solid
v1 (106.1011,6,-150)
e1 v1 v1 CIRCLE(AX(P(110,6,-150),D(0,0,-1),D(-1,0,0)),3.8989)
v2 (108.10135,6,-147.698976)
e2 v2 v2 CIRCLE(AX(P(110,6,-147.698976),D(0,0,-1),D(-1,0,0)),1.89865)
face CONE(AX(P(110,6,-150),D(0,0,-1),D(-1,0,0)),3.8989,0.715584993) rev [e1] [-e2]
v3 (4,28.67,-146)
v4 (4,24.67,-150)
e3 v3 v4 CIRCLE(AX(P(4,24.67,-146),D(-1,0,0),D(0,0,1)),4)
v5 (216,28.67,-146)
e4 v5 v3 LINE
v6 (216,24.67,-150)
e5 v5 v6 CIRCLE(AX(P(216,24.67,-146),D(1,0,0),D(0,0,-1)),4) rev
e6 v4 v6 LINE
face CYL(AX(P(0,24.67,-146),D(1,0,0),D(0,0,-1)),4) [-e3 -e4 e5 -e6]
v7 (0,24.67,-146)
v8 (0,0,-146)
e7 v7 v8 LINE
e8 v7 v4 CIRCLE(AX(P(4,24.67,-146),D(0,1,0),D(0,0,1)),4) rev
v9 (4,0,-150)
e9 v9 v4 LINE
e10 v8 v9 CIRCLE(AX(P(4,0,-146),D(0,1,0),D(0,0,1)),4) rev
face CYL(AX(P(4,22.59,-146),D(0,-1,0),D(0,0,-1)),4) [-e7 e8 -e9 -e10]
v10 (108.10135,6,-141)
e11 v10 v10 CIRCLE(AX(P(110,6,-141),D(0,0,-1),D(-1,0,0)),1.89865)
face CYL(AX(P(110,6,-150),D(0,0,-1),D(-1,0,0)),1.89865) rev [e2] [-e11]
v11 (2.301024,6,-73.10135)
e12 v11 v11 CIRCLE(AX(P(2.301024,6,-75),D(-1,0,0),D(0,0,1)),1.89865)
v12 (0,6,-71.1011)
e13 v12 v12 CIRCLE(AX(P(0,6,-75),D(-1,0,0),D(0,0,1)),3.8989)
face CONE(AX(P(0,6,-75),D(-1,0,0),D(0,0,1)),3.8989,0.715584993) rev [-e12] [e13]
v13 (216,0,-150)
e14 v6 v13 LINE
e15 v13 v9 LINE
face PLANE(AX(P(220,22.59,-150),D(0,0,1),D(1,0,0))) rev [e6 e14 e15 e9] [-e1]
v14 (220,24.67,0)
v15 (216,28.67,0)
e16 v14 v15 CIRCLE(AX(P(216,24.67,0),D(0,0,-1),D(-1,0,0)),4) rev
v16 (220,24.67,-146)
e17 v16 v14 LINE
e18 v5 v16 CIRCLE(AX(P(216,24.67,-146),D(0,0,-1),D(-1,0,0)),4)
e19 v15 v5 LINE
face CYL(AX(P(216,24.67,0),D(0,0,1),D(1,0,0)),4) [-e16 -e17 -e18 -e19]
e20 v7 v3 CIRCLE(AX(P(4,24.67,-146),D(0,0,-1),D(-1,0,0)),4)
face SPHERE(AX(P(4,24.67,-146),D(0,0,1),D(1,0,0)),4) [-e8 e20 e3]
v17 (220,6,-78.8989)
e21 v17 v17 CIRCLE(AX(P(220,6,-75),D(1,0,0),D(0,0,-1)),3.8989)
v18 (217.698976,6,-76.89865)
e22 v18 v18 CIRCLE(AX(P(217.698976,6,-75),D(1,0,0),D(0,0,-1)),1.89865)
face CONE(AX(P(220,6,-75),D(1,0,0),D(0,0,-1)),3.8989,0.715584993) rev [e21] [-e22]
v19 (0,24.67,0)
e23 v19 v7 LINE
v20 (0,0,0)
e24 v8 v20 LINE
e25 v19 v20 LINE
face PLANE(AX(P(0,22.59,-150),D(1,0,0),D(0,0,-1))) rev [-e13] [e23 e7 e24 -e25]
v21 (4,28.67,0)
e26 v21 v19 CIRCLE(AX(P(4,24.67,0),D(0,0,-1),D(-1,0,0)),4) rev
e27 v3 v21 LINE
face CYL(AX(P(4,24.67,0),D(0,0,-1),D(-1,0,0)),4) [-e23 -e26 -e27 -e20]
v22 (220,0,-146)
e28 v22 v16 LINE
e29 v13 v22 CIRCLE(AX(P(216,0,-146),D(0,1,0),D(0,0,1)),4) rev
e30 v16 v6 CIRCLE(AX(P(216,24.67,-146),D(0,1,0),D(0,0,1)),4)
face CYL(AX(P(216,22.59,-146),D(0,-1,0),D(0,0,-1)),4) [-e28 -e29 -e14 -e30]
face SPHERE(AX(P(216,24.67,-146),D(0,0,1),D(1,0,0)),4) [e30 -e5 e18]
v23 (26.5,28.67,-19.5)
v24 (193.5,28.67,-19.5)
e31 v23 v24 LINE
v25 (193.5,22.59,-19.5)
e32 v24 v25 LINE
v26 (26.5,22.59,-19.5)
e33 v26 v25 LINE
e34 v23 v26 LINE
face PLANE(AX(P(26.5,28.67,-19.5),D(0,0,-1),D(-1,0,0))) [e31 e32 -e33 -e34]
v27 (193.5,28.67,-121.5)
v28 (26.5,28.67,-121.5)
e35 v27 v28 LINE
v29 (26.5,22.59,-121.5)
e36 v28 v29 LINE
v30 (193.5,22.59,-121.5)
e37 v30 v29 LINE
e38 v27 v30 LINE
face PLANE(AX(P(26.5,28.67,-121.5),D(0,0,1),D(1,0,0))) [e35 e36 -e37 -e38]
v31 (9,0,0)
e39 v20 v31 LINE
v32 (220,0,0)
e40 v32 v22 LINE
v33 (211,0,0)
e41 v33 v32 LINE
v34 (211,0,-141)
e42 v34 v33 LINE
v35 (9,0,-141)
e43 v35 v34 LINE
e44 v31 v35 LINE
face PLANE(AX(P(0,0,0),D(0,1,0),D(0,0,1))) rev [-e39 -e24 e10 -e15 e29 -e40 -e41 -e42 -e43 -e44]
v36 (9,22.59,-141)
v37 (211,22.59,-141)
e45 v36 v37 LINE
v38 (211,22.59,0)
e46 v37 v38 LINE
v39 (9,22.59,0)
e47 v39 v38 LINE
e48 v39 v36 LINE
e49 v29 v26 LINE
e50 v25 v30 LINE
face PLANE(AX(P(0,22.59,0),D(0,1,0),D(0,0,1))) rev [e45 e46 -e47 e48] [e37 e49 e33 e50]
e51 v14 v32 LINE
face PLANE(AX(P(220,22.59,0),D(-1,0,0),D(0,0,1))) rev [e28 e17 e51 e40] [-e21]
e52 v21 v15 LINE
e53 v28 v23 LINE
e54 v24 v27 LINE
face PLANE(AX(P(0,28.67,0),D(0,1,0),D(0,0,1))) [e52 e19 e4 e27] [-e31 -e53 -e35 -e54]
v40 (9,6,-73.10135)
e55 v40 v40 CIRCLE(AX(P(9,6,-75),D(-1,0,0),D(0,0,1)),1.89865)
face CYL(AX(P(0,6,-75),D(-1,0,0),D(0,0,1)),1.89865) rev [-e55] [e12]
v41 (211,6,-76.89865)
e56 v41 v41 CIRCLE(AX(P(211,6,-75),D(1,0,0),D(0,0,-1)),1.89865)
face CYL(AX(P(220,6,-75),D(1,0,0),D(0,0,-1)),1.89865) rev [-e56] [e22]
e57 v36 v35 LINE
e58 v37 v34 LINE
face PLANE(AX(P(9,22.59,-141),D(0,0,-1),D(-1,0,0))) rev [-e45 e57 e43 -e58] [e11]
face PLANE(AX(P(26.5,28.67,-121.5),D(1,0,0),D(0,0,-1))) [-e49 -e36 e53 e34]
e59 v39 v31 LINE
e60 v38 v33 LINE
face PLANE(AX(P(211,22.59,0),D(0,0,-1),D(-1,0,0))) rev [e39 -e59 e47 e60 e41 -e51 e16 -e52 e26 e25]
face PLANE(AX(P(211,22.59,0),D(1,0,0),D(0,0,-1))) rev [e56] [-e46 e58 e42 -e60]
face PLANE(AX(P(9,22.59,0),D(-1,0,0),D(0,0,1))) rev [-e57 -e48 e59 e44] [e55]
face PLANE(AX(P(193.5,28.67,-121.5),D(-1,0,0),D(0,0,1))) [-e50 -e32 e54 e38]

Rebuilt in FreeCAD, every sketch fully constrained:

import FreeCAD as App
import Part
import Sketcher

V = App.Vector
Q = App.Units.Quantity


def edges_at(feature, points):
    """Names of the edges that pass closest to the given points."""
    edges = feature.Shape.Edges
    near = lambda p: min(range(len(edges)), key=lambda i: edges[i].distToShape(Part.Vertex(*p))[0])
    return sorted({f"Edge{near(p) + 1}" for p in points})

doc = App.newDocument("Part")
body = doc.addObject("PartDesign::Body", "Body")

sketch1 = body.newObject("Sketcher::SketchObject", "Sketch")
sketch1.AttachmentSupport = (doc.getObject("XZ_Plane"), [""])
sketch1.MapMode = "FlatFace"
sketch1.addGeometry([
    Part.LineSegment(V(211, 0, 0), V(220, 0, 0)),
    Part.LineSegment(V(220, 0, 0), V(220, -150, 0)),
    Part.LineSegment(V(220, -150, 0), V(0, -150, 0)),
    Part.LineSegment(V(0, -150, 0), V(0, 0, 0)),
    Part.LineSegment(V(0, 0, 0), V(9, 0, 0)),
    Part.LineSegment(V(9, 0, 0), V(9, -141, 0)),
    Part.LineSegment(V(9, -141, 0), V(211, -141, 0)),
    Part.LineSegment(V(211, -141, 0), V(211, 0, 0)),
], False)
sketch1.addConstraint([
    Sketcher.Constraint("Coincident", 0, 2, 1, 1),
    Sketcher.Constraint("Coincident", 1, 2, 2, 1),
    Sketcher.Constraint("Coincident", 2, 2, 3, 1),
    Sketcher.Constraint("Coincident", 3, 2, 4, 1),
    Sketcher.Constraint("Coincident", 4, 2, 5, 1),
    Sketcher.Constraint("Coincident", 5, 2, 6, 1),
    Sketcher.Constraint("Coincident", 6, 2, 7, 1),
    Sketcher.Constraint("Coincident", 7, 2, 0, 1),
    Sketcher.Constraint("Horizontal", 0),
    Sketcher.Constraint("Vertical", 1),
    Sketcher.Constraint("Horizontal", 2),
    Sketcher.Constraint("Vertical", 3),
    Sketcher.Constraint("Horizontal", 4),
    Sketcher.Constraint("Vertical", 5),
    Sketcher.Constraint("Horizontal", 6),
    Sketcher.Constraint("Vertical", 7),
    Sketcher.Constraint("Coincident", 3, 2, -1, 1),
    Sketcher.Constraint("PointOnObject", 0, 2, -1),
    Sketcher.Constraint("Equal", 0, 4),
    Sketcher.Constraint("DistanceX", 0, 1, 0, 2, Q("9 mm")),
    Sketcher.Constraint("DistanceX", 2, 2, 2, 1, Q("220 mm")),
    Sketcher.Constraint("DistanceY", 1, 2, 1, 1, Q("150 mm")),
    Sketcher.Constraint("DistanceY", 5, 2, 5, 1, Q("141 mm")),
])
pad1 = body.newObject("PartDesign::Pad", "Pad")
pad1.Profile = sketch1
pad1.Length = 22.59
pad1.Reversed = True

sketch2 = body.newObject("Sketcher::SketchObject", "Sketch001")
sketch2.AttachmentSupport = (doc.getObject("XZ_Plane"), [""])
sketch2.MapMode = "FlatFace"
sketch2.AttachmentOffset = App.Placement(V(0, 0, -22.59), App.Rotation())
sketch2.addGeometry([
    Part.LineSegment(V(0, -150, 0), V(0, 0, 0)),
    Part.LineSegment(V(0, 0, 0), V(220, 0, 0)),
    Part.LineSegment(V(220, 0, 0), V(220, -150, 0)),
    Part.LineSegment(V(220, -150, 0), V(0, -150, 0)),
    Part.LineSegment(V(194, -20, 0), V(26, -20, 0)),
    Part.LineSegment(V(26, -20, 0), V(26, -122, 0)),
    Part.LineSegment(V(26, -122, 0), V(194, -122, 0)),
    Part.LineSegment(V(194, -122, 0), V(194, -20, 0)),
], False)
sketch2.addConstraint([
    Sketcher.Constraint("Coincident", 0, 2, 1, 1),
    Sketcher.Constraint("Coincident", 1, 2, 2, 1),
    Sketcher.Constraint("Coincident", 2, 2, 3, 1),
    Sketcher.Constraint("Coincident", 3, 2, 0, 1),
    Sketcher.Constraint("Coincident", 4, 2, 5, 1),
    Sketcher.Constraint("Coincident", 5, 2, 6, 1),
    Sketcher.Constraint("Coincident", 6, 2, 7, 1),
    Sketcher.Constraint("Coincident", 7, 2, 4, 1),
    Sketcher.Constraint("Vertical", 0),
    Sketcher.Constraint("Horizontal", 1),
    Sketcher.Constraint("Vertical", 2),
    Sketcher.Constraint("Horizontal", 3),
    Sketcher.Constraint("Horizontal", 4),
    Sketcher.Constraint("Vertical", 5),
    Sketcher.Constraint("Horizontal", 6),
    Sketcher.Constraint("Vertical", 7),
    Sketcher.Constraint("Coincident", 0, 2, -1, 1),
    Sketcher.Constraint("DistanceX", 1, 1, 1, 2, Q("220 mm")),
    Sketcher.Constraint("DistanceX", 4, 2, 4, 1, Q("167 mm")),
    Sketcher.Constraint("DistanceY", 0, 1, 0, 2, Q("150 mm")),
    Sketcher.Constraint("DistanceY", 5, 2, 5, 1, Q("102 mm")),
    Sketcher.Constraint("DistanceX", -1, 1, 4, 2, Q("26.5 mm")),
    Sketcher.Constraint("DistanceY", 4, 2, -1, 1, Q("19.5 mm")),
])
pad2 = body.newObject("PartDesign::Pad", "Pad001")
pad2.Profile = sketch2
pad2.Length = 6.08
pad2.Reversed = True

sketch3 = body.newObject("Sketcher::SketchObject", "Sketch002")
sketch3.AttachmentSupport = (doc.getObject("YZ_Plane"), [""])
sketch3.MapMode = "FlatFace"
sketch3.AttachmentOffset = App.Placement(V(0, 0, 220), App.Rotation())
sketch3.addGeometry(Part.Circle(V(6, -75, 0), V(0, 0, 1), 1.9), False)
sketch3.addConstraint([
    Sketcher.Constraint("DistanceX", -1, 1, 0, 3, Q("6 mm")),
    Sketcher.Constraint("DistanceY", 0, 3, -1, 1, Q("75 mm")),
    Sketcher.Constraint("Diameter", 0, Q("3.7973 mm")),
])
doc.recompute()
hole = body.newObject("PartDesign::Hole", "Hole")
hole.Profile = sketch3
hole.ThreadType = "None"
hole.Diameter = 3.7973
hole.DepthType = "Dimension"
hole.Depth = 9
hole.DrillPoint = "Flat"
hole.HoleCutType = "Countersink"
hole.HoleCutDiameter = 7.7978
hole.HoleCutCountersinkAngle = 82

sketch4 = body.newObject("Sketcher::SketchObject", "Sketch003")
sketch4.AttachmentSupport = (doc.getObject("XY_Plane"), [""])
sketch4.MapMode = "FlatFace"
sketch4.AttachmentOffset = App.Placement(V(0, 0, -150), App.Rotation())
sketch4.addGeometry(Part.Circle(V(110, 6, 0), V(0, 0, 1), 1.9), False)
sketch4.addConstraint([
    Sketcher.Constraint("DistanceX", -1, 1, 0, 3, Q("110 mm")),
    Sketcher.Constraint("DistanceY", -1, 1, 0, 3, Q("6 mm")),
    Sketcher.Constraint("Diameter", 0, Q("3.7973 mm")),
])
doc.recompute()
hole2 = body.newObject("PartDesign::Hole", "Hole001")
hole2.Profile = sketch4
hole2.ThreadType = "None"
hole2.Diameter = 3.7973
hole2.DepthType = "ThroughAll"
hole2.HoleCutType = "Countersink"
hole2.HoleCutDiameter = 7.7978
hole2.HoleCutCountersinkAngle = 82
hole2.Reversed = True

sketch5 = body.newObject("Sketcher::SketchObject", "Sketch004")
sketch5.AttachmentSupport = (doc.getObject("YZ_Plane"), [""])
sketch5.MapMode = "FlatFace"
sketch5.addGeometry(Part.Circle(V(6, -75, 0), V(0, 0, 1), 1.9), False)
sketch5.addConstraint([
    Sketcher.Constraint("DistanceX", -1, 1, 0, 3, Q("6 mm")),
    Sketcher.Constraint("DistanceY", 0, 3, -1, 1, Q("75 mm")),
    Sketcher.Constraint("Diameter", 0, Q("3.7973 mm")),
])
doc.recompute()
hole3 = body.newObject("PartDesign::Hole", "Hole002")
hole3.Profile = sketch5
hole3.ThreadType = "None"
hole3.Diameter = 3.7973
hole3.DepthType = "ThroughAll"
hole3.HoleCutType = "Countersink"
hole3.HoleCutDiameter = 7.7978
hole3.HoleCutCountersinkAngle = 82
hole3.Reversed = True
doc.recompute()

fillet = body.newObject("PartDesign::Fillet", "Fillet")
fillet.Base = (hole3, edges_at(hole3, [
    (0, 14.335, -150),
    (220, 14.335, -150),
    (0, 28.67, -75),
    (220, 28.67, -75),
    (110, 28.67, -150),
]))
fillet.Radius = 4

doc.recompute()
